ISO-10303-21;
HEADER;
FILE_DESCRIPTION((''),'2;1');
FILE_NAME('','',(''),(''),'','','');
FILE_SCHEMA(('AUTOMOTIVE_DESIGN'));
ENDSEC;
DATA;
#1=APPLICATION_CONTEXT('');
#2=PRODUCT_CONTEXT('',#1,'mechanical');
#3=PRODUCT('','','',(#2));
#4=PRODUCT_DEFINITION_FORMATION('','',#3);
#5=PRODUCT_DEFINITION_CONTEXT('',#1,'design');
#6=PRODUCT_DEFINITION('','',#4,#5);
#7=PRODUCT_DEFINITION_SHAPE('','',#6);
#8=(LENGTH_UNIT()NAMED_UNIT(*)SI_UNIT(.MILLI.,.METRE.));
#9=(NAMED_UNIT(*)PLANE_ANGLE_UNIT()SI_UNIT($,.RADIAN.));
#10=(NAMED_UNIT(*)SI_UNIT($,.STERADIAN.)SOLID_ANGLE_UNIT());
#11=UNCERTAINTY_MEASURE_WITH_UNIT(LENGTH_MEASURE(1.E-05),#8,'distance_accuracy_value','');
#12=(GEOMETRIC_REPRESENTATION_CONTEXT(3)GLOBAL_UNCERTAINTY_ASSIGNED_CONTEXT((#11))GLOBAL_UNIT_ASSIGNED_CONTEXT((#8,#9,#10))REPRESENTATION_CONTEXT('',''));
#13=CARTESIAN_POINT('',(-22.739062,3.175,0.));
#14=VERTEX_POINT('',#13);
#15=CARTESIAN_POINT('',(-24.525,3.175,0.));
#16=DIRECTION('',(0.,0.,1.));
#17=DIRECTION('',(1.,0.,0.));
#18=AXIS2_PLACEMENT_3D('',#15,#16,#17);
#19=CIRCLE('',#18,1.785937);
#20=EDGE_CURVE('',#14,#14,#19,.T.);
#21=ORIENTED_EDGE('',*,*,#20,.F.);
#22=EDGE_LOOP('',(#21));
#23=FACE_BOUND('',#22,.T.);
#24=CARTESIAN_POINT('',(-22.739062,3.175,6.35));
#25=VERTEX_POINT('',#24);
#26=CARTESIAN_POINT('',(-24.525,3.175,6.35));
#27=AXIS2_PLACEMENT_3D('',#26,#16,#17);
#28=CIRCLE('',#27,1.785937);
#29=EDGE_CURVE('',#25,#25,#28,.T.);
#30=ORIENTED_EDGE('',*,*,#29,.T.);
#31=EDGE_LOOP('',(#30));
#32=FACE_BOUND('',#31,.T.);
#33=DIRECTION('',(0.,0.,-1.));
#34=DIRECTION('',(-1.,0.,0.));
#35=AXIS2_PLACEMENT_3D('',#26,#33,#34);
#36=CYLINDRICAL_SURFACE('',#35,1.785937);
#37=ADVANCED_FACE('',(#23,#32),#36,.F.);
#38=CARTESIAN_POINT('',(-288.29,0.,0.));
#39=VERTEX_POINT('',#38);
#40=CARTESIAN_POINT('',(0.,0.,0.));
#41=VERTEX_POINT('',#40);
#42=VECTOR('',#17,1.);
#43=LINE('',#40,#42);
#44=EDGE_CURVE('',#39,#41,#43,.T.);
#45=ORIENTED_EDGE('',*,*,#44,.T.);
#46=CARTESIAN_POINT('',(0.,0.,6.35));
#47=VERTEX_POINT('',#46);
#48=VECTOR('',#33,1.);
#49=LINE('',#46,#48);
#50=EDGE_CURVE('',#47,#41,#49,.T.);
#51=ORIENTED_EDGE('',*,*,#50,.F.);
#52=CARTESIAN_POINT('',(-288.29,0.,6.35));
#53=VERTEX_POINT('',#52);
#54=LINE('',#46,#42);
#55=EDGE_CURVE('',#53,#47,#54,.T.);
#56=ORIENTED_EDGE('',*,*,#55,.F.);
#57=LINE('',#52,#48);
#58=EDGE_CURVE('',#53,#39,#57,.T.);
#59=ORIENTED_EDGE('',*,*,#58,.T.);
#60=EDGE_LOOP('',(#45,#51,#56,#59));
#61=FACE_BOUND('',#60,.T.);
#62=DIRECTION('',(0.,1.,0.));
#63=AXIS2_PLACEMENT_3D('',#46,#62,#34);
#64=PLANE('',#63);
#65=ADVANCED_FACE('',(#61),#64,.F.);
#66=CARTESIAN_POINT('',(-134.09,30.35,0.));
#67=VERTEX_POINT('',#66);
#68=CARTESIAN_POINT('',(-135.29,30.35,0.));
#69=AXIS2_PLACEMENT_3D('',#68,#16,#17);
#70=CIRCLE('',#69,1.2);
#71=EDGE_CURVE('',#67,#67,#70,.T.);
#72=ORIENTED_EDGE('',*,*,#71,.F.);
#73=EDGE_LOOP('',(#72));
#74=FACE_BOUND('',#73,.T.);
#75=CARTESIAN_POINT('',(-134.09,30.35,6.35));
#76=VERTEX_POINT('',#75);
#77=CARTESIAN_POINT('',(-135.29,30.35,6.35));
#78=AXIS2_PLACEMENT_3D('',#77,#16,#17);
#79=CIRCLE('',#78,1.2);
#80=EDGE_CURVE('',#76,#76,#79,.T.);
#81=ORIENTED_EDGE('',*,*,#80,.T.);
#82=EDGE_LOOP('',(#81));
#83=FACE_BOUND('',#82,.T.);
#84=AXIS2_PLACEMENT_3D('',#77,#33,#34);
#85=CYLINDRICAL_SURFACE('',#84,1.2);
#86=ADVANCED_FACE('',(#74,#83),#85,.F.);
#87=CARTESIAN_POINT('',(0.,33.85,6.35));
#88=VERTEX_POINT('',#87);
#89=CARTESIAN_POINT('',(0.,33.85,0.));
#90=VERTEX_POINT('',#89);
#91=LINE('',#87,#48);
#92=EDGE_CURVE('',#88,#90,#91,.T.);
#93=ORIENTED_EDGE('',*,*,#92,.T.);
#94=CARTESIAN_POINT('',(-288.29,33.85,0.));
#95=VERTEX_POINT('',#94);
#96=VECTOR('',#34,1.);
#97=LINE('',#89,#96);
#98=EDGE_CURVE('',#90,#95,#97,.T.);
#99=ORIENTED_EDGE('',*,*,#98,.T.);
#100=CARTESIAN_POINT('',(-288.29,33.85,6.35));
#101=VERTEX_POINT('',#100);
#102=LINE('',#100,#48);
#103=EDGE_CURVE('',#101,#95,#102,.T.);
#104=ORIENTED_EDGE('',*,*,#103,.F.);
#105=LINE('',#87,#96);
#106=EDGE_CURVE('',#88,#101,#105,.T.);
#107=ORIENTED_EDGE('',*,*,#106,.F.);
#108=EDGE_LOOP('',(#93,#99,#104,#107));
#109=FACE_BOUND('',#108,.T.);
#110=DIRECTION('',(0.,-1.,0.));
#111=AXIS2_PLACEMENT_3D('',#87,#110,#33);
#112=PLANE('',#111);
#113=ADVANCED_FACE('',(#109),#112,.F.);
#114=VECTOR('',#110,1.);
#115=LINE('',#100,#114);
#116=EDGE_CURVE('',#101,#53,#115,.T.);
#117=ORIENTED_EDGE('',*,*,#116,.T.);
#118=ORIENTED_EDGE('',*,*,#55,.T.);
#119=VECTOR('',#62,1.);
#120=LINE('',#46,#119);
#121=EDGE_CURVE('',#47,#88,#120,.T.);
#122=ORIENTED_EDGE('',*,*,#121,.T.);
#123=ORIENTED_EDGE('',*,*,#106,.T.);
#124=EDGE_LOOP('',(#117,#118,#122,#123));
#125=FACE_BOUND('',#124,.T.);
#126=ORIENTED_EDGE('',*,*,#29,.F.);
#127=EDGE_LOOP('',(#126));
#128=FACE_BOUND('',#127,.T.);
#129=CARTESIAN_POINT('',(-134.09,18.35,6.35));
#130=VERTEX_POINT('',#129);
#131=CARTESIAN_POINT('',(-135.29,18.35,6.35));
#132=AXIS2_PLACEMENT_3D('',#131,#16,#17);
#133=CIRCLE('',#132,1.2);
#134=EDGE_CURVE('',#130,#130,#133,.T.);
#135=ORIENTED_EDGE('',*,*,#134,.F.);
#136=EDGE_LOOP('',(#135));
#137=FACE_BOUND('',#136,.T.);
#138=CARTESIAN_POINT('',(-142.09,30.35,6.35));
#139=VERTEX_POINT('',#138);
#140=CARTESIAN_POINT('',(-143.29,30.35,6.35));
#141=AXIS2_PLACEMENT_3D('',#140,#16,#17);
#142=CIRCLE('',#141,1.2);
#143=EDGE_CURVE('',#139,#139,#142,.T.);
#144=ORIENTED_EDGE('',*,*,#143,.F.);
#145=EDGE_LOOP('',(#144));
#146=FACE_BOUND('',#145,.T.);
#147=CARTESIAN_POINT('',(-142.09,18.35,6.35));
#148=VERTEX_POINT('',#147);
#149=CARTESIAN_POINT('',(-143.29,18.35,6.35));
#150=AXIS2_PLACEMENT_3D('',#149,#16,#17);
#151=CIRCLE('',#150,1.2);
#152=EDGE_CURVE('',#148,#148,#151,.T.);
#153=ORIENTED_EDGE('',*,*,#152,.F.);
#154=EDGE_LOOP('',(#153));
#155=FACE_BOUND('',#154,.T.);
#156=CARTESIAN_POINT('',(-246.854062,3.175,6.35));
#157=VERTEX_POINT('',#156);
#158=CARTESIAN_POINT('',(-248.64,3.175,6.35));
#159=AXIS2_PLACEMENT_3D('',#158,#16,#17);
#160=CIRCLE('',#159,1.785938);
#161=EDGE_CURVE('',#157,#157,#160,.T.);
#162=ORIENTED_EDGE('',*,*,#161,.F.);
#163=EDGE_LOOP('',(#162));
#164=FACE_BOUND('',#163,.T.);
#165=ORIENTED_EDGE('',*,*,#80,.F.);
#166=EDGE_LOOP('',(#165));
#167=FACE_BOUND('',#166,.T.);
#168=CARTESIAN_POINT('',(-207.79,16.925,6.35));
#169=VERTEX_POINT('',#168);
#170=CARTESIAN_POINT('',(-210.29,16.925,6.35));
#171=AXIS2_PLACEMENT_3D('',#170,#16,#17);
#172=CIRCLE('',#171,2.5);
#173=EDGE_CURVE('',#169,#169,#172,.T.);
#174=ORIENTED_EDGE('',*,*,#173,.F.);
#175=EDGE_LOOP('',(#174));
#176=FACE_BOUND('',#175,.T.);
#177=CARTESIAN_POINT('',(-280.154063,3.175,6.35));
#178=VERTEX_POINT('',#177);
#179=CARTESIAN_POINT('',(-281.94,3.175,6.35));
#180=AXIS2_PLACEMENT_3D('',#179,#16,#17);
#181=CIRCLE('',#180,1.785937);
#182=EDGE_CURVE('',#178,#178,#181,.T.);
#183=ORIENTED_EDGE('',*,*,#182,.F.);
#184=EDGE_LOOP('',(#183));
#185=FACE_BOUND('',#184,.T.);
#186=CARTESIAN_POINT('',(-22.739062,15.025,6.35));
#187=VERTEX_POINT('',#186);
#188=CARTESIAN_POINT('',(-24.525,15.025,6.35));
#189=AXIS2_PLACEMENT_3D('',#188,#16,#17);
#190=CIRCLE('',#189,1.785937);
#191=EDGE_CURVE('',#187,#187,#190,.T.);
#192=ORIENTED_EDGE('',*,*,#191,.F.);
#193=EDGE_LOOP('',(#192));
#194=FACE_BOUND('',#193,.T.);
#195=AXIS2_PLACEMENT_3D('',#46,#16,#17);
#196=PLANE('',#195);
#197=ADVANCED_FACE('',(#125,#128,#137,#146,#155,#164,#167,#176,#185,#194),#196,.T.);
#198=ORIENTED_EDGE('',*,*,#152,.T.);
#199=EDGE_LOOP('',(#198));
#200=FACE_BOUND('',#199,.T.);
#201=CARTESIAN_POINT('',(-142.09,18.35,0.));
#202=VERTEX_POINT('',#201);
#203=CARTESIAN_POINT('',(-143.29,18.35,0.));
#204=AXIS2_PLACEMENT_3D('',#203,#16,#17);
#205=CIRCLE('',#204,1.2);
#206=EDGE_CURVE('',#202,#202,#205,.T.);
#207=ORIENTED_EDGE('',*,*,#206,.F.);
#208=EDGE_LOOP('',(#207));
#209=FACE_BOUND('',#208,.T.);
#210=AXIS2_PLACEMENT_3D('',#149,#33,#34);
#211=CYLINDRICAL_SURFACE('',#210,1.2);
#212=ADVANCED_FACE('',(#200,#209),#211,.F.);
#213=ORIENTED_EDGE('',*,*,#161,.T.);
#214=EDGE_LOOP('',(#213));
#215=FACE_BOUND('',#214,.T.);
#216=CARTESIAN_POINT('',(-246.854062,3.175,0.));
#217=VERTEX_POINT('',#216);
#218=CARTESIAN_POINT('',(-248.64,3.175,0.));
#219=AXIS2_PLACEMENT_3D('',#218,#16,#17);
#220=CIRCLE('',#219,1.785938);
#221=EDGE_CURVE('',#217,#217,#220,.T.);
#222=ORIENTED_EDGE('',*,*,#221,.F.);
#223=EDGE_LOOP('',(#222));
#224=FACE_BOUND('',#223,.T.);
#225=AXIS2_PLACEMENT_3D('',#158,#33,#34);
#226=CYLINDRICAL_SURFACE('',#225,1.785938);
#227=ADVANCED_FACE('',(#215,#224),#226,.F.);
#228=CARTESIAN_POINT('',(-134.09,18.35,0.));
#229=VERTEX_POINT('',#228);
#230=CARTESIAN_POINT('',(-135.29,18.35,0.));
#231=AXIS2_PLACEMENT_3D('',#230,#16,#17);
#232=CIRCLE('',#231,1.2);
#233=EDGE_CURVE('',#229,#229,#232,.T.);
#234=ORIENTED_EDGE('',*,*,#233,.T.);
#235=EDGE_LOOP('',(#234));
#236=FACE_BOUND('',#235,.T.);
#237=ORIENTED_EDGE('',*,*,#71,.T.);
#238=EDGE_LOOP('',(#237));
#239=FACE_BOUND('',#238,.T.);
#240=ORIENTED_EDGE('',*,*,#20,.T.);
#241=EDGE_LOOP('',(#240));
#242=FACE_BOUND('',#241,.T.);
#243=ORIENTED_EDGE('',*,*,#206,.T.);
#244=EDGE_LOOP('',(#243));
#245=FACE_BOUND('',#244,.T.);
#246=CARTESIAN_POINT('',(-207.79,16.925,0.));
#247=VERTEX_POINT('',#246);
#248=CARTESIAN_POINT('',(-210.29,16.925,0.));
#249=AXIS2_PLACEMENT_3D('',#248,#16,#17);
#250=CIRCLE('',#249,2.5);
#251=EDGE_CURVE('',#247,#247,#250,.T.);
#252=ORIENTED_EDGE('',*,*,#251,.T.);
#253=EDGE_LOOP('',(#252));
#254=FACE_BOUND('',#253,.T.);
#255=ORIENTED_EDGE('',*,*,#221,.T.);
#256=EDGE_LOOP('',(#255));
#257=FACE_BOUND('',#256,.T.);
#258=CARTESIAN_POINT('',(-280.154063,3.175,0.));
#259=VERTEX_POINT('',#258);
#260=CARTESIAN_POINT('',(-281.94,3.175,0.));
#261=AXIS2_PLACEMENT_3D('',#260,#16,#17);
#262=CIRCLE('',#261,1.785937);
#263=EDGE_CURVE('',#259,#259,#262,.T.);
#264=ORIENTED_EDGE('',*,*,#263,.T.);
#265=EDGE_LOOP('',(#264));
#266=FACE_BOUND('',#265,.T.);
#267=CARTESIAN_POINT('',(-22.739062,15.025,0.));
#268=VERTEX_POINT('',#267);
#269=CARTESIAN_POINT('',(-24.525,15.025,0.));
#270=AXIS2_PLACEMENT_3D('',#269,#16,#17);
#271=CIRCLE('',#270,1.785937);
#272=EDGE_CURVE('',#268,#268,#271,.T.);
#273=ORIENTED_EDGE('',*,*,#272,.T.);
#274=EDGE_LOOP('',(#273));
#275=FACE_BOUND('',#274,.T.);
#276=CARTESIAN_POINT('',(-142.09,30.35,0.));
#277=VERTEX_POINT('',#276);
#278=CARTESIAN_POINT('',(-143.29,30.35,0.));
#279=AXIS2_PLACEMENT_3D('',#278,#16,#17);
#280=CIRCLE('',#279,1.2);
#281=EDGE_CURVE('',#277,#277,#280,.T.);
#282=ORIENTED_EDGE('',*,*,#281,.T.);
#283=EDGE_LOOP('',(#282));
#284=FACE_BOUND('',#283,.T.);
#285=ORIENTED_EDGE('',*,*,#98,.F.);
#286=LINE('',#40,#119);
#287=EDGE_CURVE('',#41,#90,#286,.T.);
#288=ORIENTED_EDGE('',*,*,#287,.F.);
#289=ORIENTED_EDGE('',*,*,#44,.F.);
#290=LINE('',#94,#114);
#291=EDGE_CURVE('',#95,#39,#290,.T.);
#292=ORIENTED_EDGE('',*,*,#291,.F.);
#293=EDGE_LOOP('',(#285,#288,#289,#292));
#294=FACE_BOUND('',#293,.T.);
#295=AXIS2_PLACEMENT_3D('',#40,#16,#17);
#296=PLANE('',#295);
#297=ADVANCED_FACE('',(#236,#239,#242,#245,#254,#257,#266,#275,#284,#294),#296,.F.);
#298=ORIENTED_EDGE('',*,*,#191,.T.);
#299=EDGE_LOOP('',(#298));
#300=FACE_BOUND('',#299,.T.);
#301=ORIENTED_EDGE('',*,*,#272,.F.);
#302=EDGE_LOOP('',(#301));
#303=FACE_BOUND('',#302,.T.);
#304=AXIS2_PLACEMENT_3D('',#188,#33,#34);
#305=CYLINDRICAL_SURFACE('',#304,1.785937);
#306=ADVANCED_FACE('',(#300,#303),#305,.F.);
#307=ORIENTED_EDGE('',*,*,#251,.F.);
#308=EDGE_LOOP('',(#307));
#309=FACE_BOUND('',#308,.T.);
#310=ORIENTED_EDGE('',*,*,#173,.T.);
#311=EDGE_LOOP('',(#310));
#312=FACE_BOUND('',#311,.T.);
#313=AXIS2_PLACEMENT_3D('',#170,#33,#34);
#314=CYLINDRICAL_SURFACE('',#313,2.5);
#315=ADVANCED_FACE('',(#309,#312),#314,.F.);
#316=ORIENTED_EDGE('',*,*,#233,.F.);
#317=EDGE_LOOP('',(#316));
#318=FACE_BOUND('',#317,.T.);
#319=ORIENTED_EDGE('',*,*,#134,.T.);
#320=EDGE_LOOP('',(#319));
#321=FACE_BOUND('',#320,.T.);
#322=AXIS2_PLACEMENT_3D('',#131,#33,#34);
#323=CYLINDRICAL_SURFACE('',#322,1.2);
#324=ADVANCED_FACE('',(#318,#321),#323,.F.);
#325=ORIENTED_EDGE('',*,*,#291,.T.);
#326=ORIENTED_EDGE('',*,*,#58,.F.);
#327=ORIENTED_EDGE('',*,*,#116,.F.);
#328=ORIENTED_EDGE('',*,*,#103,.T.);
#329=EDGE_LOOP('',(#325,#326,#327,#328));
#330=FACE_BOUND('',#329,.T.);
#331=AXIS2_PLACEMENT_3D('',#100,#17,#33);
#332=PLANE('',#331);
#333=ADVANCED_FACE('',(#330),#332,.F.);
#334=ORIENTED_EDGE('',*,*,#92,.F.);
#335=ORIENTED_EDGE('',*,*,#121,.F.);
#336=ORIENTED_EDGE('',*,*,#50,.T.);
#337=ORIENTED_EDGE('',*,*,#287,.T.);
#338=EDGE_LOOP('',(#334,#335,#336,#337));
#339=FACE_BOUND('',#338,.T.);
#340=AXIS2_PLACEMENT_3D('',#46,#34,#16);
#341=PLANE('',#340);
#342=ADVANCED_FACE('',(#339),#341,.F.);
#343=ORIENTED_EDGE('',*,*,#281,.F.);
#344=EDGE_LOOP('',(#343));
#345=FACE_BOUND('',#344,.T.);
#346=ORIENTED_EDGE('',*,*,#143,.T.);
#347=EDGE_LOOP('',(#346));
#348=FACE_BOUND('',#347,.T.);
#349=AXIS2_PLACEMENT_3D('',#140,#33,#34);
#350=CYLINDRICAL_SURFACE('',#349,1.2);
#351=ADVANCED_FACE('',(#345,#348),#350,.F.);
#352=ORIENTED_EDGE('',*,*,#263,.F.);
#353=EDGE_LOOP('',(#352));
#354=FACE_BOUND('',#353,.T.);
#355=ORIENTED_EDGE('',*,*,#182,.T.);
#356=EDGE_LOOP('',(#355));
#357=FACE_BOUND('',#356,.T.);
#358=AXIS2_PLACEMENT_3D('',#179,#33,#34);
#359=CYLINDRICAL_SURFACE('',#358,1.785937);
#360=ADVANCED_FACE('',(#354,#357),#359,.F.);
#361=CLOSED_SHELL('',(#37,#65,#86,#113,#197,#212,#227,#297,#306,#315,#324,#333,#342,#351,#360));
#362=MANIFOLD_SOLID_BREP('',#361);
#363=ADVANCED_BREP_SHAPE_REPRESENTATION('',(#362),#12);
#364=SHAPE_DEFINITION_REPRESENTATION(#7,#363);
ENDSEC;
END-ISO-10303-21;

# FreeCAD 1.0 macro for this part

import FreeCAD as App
import Part
import Sketcher
Q = App.Units.Quantity

doc = App.newDocument("Part")
body = doc.addObject("PartDesign::Body", "Body")

# Sketch on XY plane
sketch1 = body.newObject("Sketcher::SketchObject", "Sketch")
sketch1.AttachmentSupport = (doc.getObject("XY_Plane"), [""])
sketch1.MapMode = "FlatFace"
sketch1.addGeometry(Part.LineSegment(App.Vector(-288.29, 33.85, 0), App.Vector(-288.29, 0, 0)), False)
sketch1.addGeometry(Part.LineSegment(App.Vector(-288.29, 0, 0), App.Vector(0, 0, 0)), False)
sketch1.addGeometry(Part.LineSegment(App.Vector(0, 0, 0), App.Vector(0, 33.85, 0)), False)
sketch1.addGeometry(Part.LineSegment(App.Vector(0, 33.85, 0), App.Vector(-288.29, 33.85, 0)), False)
sketch1.addGeometry(Part.Circle(App.Vector(-281.94, 3.175, 0), App.Vector(0, 0, 1), 1.785937), False)
sketch1.addGeometry(Part.Circle(App.Vector(-248.64, 3.175, 0), App.Vector(0, 0, 1), 1.785937), False)
sketch1.addGeometry(Part.Circle(App.Vector(-24.525, 3.175, 0), App.Vector(0, 0, 1), 1.785937), False)
sketch1.addGeometry(Part.Circle(App.Vector(-24.525, 15.025, 0), App.Vector(0, 0, 1), 1.785937), False)
sketch1.addGeometry(Part.Circle(App.Vector(-210.29, 16.925, 0), App.Vector(0, 0, 1), 2.5), False)
sketch1.addGeometry(Part.Circle(App.Vector(-143.29, 18.35, 0), App.Vector(0, 0, 1), 1.2), False)
sketch1.addGeometry(Part.Circle(App.Vector(-135.29, 18.35, 0), App.Vector(0, 0, 1), 1.2), False)
sketch1.addGeometry(Part.Circle(App.Vector(-143.29, 30.35, 0), App.Vector(0, 0, 1), 1.2), False)
sketch1.addGeometry(Part.Circle(App.Vector(-135.29, 30.35, 0), App.Vector(0, 0, 1), 1.2), False)
sketch1.addConstraint(Sketcher.Constraint("Coincident", 0, 2, 1, 1))
sketch1.addConstraint(Sketcher.Constraint("Coincident", 1, 2, 2, 1))
sketch1.addConstraint(Sketcher.Constraint("Coincident", 2, 2, 3, 1))
sketch1.addConstraint(Sketcher.Constraint("Coincident", 3, 2, 0, 1))
sketch1.addConstraint(Sketcher.Constraint("Vertical", 0))
sketch1.addConstraint(Sketcher.Constraint("Horizontal", 1))
sketch1.addConstraint(Sketcher.Constraint("Vertical", 2))
sketch1.addConstraint(Sketcher.Constraint("Horizontal", 3))
sketch1.addConstraint(Sketcher.Constraint("Coincident", 1, 2, -1, 1))
sketch1.addConstraint(Sketcher.Constraint("Equal", 4, 5))
sketch1.addConstraint(Sketcher.Constraint("Equal", 5, 6))
sketch1.addConstraint(Sketcher.Constraint("Equal", 6, 7))
sketch1.addConstraint(Sketcher.Constraint("Equal", 9, 10))
sketch1.addConstraint(Sketcher.Constraint("Equal", 10, 11))
sketch1.addConstraint(Sketcher.Constraint("Equal", 11, 12))
sketch1.addConstraint(Sketcher.Constraint("Horizontal", 4, 3, 5, 3))
sketch1.addConstraint(Sketcher.Constraint("Horizontal", 5, 3, 6, 3))
sketch1.addConstraint(Sketcher.Constraint("Horizontal", 9, 3, 10, 3))
sketch1.addConstraint(Sketcher.Constraint("Horizontal", 11, 3, 12, 3))
sketch1.addConstraint(Sketcher.Constraint("Vertical", 6, 3, 7, 3))
sketch1.addConstraint(Sketcher.Constraint("Vertical", 9, 3, 11, 3))
sketch1.addConstraint(Sketcher.Constraint("Vertical", 10, 3, 12, 3))
sketch1.addConstraint(Sketcher.Constraint("Diameter", 4, Q("0.140625 in")))
sketch1.addConstraint(Sketcher.Constraint("DistanceX", 1, 1, 1, 2, Q("11.35 in")))
sketch1.addConstraint(Sketcher.Constraint("DistanceX", 4, 3, -1, 1, Q("11.1 in")))
sketch1.addConstraint(Sketcher.Constraint("Diameter", 8, 5.0))
sketch1.addConstraint(Sketcher.Constraint("Diameter", 9, 2.4))
sketch1.addConstraint(Sketcher.Constraint("DistanceY", -1, 1, 4, 3, Q("0.125 in")))
sketch1.addConstraint(Sketcher.Constraint("DistanceY", 0, 2, 0, 1, 33.85))
sketch1.addConstraint(Sketcher.Constraint("DistanceX", 5, 3, -1, 1, 248.64))
sketch1.addConstraint(Sketcher.Constraint("DistanceX", 6, 3, -1, 1, 24.525))
sketch1.addConstraint(Sketcher.Constraint("DistanceY", -1, 1, 7, 3, 15.025))
sketch1.addConstraint(Sketcher.Constraint("DistanceX", 8, 3, -1, 1, 210.29))
sketch1.addConstraint(Sketcher.Constraint("DistanceY", -1, 1, 8, 3, 16.925))
sketch1.addConstraint(Sketcher.Constraint("DistanceX", 9, 3, -1, 1, 143.29))
sketch1.addConstraint(Sketcher.Constraint("DistanceY", -1, 1, 9, 3, 18.35))
sketch1.addConstraint(Sketcher.Constraint("DistanceX", 10, 3, -1, 1, 135.29))
sketch1.addConstraint(Sketcher.Constraint("DistanceY", -1, 1, 11, 3, 30.35))
pad1 = body.newObject("PartDesign::Pad", "Pad")
pad1.Profile = sketch1
pad1.Length = Q("0.25 in")

doc.recompute()
